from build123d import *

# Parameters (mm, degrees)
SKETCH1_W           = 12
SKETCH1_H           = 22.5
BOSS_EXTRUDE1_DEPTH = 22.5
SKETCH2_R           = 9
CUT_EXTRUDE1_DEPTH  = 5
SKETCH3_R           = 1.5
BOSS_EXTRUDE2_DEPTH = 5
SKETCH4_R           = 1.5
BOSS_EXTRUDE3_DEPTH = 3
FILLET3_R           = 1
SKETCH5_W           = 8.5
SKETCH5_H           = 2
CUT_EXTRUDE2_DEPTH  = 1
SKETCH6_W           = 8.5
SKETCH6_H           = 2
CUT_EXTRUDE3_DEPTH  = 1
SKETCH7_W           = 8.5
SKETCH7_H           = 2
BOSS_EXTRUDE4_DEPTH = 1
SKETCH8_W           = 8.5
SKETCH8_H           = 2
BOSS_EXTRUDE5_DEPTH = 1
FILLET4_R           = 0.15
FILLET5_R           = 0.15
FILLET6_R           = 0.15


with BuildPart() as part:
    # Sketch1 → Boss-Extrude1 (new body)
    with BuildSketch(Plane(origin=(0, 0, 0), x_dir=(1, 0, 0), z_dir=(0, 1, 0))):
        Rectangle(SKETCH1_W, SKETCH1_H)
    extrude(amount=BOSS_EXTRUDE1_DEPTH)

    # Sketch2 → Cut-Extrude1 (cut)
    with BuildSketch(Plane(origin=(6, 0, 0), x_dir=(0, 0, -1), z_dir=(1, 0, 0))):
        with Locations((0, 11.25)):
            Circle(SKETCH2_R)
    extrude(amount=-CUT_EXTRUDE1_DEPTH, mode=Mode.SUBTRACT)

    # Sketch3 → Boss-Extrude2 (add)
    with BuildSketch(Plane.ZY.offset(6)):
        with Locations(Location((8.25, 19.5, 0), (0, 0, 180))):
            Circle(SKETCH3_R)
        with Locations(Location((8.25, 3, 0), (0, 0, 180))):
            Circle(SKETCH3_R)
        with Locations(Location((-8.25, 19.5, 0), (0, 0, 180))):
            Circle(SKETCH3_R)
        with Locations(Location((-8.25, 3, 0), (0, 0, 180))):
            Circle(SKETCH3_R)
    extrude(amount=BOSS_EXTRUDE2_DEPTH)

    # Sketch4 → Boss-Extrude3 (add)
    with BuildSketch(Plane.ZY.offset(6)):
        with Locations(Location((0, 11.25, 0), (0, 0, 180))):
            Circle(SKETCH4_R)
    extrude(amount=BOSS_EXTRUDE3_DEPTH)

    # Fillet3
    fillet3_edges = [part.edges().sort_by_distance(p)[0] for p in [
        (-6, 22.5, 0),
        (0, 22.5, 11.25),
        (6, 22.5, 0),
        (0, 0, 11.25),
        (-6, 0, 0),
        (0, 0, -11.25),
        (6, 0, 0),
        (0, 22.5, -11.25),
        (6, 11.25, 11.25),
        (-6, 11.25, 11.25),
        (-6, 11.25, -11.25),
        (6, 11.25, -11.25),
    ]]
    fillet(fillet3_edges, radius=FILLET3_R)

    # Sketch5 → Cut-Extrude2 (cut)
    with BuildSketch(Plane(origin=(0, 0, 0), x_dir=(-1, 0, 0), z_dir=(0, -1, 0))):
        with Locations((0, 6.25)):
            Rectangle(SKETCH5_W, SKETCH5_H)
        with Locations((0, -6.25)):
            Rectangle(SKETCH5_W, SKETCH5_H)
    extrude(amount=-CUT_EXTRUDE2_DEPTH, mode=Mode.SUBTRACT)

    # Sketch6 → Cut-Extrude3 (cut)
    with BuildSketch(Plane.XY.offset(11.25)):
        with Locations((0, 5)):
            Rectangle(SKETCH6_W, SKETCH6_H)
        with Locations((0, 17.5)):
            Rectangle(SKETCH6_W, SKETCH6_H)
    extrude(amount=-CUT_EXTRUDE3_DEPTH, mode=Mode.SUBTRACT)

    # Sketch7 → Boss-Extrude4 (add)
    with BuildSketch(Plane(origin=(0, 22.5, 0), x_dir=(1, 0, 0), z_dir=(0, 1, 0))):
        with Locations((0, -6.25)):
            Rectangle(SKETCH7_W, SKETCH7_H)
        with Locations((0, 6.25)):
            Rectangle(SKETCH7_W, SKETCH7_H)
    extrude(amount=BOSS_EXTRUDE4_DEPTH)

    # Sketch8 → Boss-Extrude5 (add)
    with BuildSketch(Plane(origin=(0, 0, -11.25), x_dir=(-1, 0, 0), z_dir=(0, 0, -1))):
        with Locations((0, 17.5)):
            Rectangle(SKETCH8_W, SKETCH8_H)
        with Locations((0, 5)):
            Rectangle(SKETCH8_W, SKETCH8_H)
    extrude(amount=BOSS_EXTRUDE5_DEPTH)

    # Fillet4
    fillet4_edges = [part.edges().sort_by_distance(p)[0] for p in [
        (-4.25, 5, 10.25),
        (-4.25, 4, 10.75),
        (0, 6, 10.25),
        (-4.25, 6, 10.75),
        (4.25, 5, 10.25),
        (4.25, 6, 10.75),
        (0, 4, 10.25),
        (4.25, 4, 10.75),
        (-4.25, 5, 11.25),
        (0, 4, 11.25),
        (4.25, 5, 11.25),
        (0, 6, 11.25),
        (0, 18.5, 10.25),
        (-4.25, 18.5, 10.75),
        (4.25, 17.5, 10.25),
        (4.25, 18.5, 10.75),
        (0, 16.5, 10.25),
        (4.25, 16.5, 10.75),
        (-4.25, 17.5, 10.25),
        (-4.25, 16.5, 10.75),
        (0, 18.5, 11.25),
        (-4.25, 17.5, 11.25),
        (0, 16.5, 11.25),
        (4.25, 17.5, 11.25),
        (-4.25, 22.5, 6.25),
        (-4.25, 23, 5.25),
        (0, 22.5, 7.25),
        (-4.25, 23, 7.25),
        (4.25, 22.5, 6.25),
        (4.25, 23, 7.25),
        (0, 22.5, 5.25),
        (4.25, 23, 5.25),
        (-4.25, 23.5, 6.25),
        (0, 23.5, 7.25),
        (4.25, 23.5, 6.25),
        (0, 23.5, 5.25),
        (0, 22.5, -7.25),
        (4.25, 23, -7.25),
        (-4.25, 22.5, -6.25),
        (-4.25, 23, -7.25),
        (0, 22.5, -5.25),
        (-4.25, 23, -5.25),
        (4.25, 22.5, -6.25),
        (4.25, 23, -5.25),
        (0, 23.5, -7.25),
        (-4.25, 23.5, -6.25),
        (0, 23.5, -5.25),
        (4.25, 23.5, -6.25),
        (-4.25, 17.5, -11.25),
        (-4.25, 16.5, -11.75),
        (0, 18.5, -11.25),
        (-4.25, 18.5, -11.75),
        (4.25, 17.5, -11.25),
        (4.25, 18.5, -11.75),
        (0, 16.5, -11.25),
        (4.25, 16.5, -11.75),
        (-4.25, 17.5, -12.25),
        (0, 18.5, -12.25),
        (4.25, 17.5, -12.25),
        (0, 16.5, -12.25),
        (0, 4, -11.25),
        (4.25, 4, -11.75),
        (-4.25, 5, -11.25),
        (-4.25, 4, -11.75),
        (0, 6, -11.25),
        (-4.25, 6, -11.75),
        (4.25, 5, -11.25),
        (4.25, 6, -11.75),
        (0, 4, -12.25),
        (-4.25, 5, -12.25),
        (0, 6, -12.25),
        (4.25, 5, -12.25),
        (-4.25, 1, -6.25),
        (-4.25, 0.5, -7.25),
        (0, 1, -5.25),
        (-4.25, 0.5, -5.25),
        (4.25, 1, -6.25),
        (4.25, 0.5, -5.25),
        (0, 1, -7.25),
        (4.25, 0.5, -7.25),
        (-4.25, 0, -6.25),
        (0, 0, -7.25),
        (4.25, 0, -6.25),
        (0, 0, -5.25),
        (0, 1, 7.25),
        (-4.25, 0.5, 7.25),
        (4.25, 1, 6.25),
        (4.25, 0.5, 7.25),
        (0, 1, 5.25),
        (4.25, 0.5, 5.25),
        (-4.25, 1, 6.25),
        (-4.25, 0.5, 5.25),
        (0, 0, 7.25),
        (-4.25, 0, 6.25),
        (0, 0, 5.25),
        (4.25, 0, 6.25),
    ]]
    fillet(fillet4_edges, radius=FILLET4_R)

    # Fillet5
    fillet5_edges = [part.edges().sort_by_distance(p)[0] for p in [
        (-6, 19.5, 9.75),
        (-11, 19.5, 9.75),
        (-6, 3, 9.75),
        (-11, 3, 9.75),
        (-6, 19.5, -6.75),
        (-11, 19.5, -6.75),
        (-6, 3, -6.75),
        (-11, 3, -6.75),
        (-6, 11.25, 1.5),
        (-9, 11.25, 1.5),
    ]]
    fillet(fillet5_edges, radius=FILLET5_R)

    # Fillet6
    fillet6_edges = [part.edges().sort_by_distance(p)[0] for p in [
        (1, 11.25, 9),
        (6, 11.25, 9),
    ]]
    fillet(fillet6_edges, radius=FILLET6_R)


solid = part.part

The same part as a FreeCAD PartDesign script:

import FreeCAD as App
import Part
import Sketcher


def edges_at(feature, points):
    """Names of the edges that pass closest to the given points."""
    edges = feature.Shape.Edges
    near = lambda p: min(range(len(edges)), key=lambda i: edges[i].distToShape(Part.Vertex(*p))[0])
    return sorted({f"Edge{near(p) + 1}" for p in points})

doc = App.newDocument("Part")
body = doc.addObject("PartDesign::Body", "Body")

# Sketch on XZ plane
sketch1 = doc.addObject("Sketcher::SketchObject", "Sketch")
body.addObject(sketch1)
sketch1.AttachmentSupport = (doc.XZ_Plane, [""])
sketch1.MapMode = "FlatFace"
sketch1.addGeometry(Part.LineSegment(App.Vector(-6, -11, 0), App.Vector(-6, 11, 0)), False)
sketch1.addGeometry(Part.LineSegment(App.Vector(-6, 11, 0), App.Vector(6, 11, 0)), False)
sketch1.addGeometry(Part.LineSegment(App.Vector(6, 11, 0), App.Vector(6, -11, 0)), False)
sketch1.addGeometry(Part.LineSegment(App.Vector(6, -11, 0), App.Vector(-6, -11, 0)), False)
sketch1.addConstraint(Sketcher.Constraint("Coincident", 0, 2, 1, 1))
sketch1.addConstraint(Sketcher.Constraint("Coincident", 1, 2, 2, 1))
sketch1.addConstraint(Sketcher.Constraint("Coincident", 2, 2, 3, 1))
sketch1.addConstraint(Sketcher.Constraint("Coincident", 3, 2, 0, 1))
sketch1.addConstraint(Sketcher.Constraint("Vertical", 0))
sketch1.addConstraint(Sketcher.Constraint("Horizontal", 1))
sketch1.addConstraint(Sketcher.Constraint("Vertical", 2))
sketch1.addConstraint(Sketcher.Constraint("Horizontal", 3))
sketch1.addConstraint(Sketcher.Constraint("Symmetric", 0, 2, 2, 2, -1, 1))
sketch1.addConstraint(Sketcher.Constraint("DistanceX", 1, 1, 1, 2, 12.0))
sketch1.addConstraint(Sketcher.Constraint("DistanceY", 0, 1, 0, 2, 22.5))
pad1 = doc.addObject("PartDesign::Pad", "Pad")
body.addObject(pad1)
pad1.Profile = sketch1
pad1.Length = 22.5
pad1.Reversed = True

# Sketch on YZ plane
sketch2 = doc.addObject("Sketcher::SketchObject", "Sketch001")
body.addObject(sketch2)
sketch2.AttachmentSupport = (doc.YZ_Plane, [""])
sketch2.MapMode = "FlatFace"
sketch2.AttachmentOffset = App.Placement(App.Vector(0, 0, 6), App.Rotation())
sketch2.addGeometry(Part.Circle(App.Vector(11, 0, 0), App.Vector(0, 0, 1), 9), False)
sketch2.addConstraint(Sketcher.Constraint("PointOnObject", 0, 3, -1))
sketch2.addConstraint(Sketcher.Constraint("Diameter", 0, 18.0))
sketch2.addConstraint(Sketcher.Constraint("DistanceX", -1, 1, 0, 3, 11.25))
pocket1 = doc.addObject("PartDesign::Pocket", "Pocket")
body.addObject(pocket1)
pocket1.Profile = sketch2
pocket1.Length = 5

# Sketch on YZ plane
sketch3 = doc.addObject("Sketcher::SketchObject", "Sketch002")
body.addObject(sketch3)
sketch3.AttachmentSupport = (doc.YZ_Plane, [""])
sketch3.MapMode = "FlatFace"
sketch3.AttachmentOffset = App.Placement(App.Vector(0, 0, -6), App.Rotation())
sketch3.addGeometry(Part.Circle(App.Vector(19.5, 8.2, 0), App.Vector(0, 0, 1), 1.5), False)
sketch3.addGeometry(Part.Circle(App.Vector(3, 8.2, 0), App.Vector(0, 0, 1), 1.5), False)
sketch3.addGeometry(Part.Circle(App.Vector(19.5, -8.2, 0), App.Vector(0, 0, 1), 1.5), False)
sketch3.addGeometry(Part.Circle(App.Vector(3, -8.2, 0), App.Vector(0, 0, 1), 1.5), False)
sketch3.addConstraint(Sketcher.Constraint("Equal", 0, 1))
sketch3.addConstraint(Sketcher.Constraint("Equal", 1, 2))
sketch3.addConstraint(Sketcher.Constraint("Equal", 2, 3))
sketch3.addConstraint(Sketcher.Constraint("Symmetric", 0, 3, 2, 3, -1))
sketch3.addConstraint(Sketcher.Constraint("Symmetric", 1, 3, 3, 3, -1))
sketch3.addConstraint(Sketcher.Constraint("Horizontal", 0, 3, 1, 3))
sketch3.addConstraint(Sketcher.Constraint("Diameter", 0, 3.0))
sketch3.addConstraint(Sketcher.Constraint("DistanceX", -1, 1, 1, 3, 3.0))
sketch3.addConstraint(Sketcher.Constraint("DistanceX", -1, 1, 0, 3, 19.5))
sketch3.addConstraint(Sketcher.Constraint("DistanceY", 2, 3, 0, 3, 16.5))
pad2 = doc.addObject("PartDesign::Pad", "Pad001")
body.addObject(pad2)
pad2.Profile = sketch3
pad2.Length = 5
pad2.Reversed = True

# Sketch on YZ plane
sketch4 = doc.addObject("Sketcher::SketchObject", "Sketch003")
body.addObject(sketch4)
sketch4.AttachmentSupport = (doc.YZ_Plane, [""])
sketch4.MapMode = "FlatFace"
sketch4.AttachmentOffset = App.Placement(App.Vector(0, 0, -6), App.Rotation())
sketch4.addGeometry(Part.Circle(App.Vector(11.2, 0, 0), App.Vector(0, 0, 1), 1.5), False)
sketch4.addConstraint(Sketcher.Constraint("PointOnObject", 0, 3, -1))
sketch4.addConstraint(Sketcher.Constraint("Diameter", 0, 3.0))
sketch4.addConstraint(Sketcher.Constraint("DistanceX", -1, 1, 0, 3, 11.25))
pad3 = doc.addObject("PartDesign::Pad", "Pad002")
body.addObject(pad3)
pad3.Profile = sketch4
pad3.Length = 3
pad3.Reversed = True
doc.recompute()

fillet = doc.addObject("PartDesign::Fillet", "Fillet")
body.addObject(fillet)
fillet.Base = (pad3, edges_at(pad3, [
    (-6, 22.5, 0),
    (0, 22.5, 11.25),
    (6, 22.5, 0),
    (0, 0, 11.25),
    (-6, 0, 0),
    (0, 0, -11.25),
    (6, 0, 0),
    (0, 22.5, -11.25),
    (6, 11.25, 11.25),
    (-6, 11.25, 11.25),
    (-6, 11.25, -11.25),
    (6, 11.25, -11.25),
]))
fillet.Radius = 1

# Sketch on XZ plane
sketch5 = doc.addObject("Sketcher::SketchObject", "Sketch004")
body.addObject(sketch5)
sketch5.AttachmentSupport = (doc.XZ_Plane, [""])
sketch5.MapMode = "FlatFace"
sketch5.addGeometry(Part.LineSegment(App.Vector(4.2, -7.2, 0), App.Vector(4.2, -5.2, 0)), False)
sketch5.addGeometry(Part.LineSegment(App.Vector(4.2, -5.2, 0), App.Vector(-4.2, -5.2, 0)), False)
sketch5.addGeometry(Part.LineSegment(App.Vector(-4.2, -5.2, 0), App.Vector(-4.2, -7.2, 0)), False)
sketch5.addGeometry(Part.LineSegment(App.Vector(-4.2, -7.2, 0), App.Vector(4.2, -7.2, 0)), False)
sketch5.addGeometry(Part.LineSegment(App.Vector(4.2, 5.2, 0), App.Vector(4.2, 7.2, 0)), False)
sketch5.addGeometry(Part.LineSegment(App.Vector(4.2, 7.2, 0), App.Vector(-4.2, 7.2, 0)), False)
sketch5.addGeometry(Part.LineSegment(App.Vector(-4.2, 7.2, 0), App.Vector(-4.2, 5.2, 0)), False)
sketch5.addGeometry(Part.LineSegment(App.Vector(-4.2, 5.2, 0), App.Vector(4.2, 5.2, 0)), False)
sketch5.addConstraint(Sketcher.Constraint("Coincident", 0, 2, 1, 1))
sketch5.addConstraint(Sketcher.Constraint("Coincident", 1, 2, 2, 1))
sketch5.addConstraint(Sketcher.Constraint("Coincident", 2, 2, 3, 1))
sketch5.addConstraint(Sketcher.Constraint("Coincident", 3, 2, 0, 1))
sketch5.addConstraint(Sketcher.Constraint("Coincident", 4, 2, 5, 1))
sketch5.addConstraint(Sketcher.Constraint("Coincident", 5, 2, 6, 1))
sketch5.addConstraint(Sketcher.Constraint("Coincident", 6, 2, 7, 1))
sketch5.addConstraint(Sketcher.Constraint("Coincident", 7, 2, 4, 1))
sketch5.addConstraint(Sketcher.Constraint("Vertical", 0))
sketch5.addConstraint(Sketcher.Constraint("Horizontal", 1))
sketch5.addConstraint(Sketcher.Constraint("Vertical", 2))
sketch5.addConstraint(Sketcher.Constraint("Horizontal", 3))
sketch5.addConstraint(Sketcher.Constraint("Vertical", 4))
sketch5.addConstraint(Sketcher.Constraint("Horizontal", 5))
sketch5.addConstraint(Sketcher.Constraint("Vertical", 6))
sketch5.addConstraint(Sketcher.Constraint("Horizontal", 7))
sketch5.addConstraint(Sketcher.Constraint("Symmetric", 2, 2, 4, 2, -1, 1))
sketch5.addConstraint(Sketcher.Constraint("Symmetric", 0, 2, 6, 2, -1, 1))
sketch5.addConstraint(Sketcher.Constraint("Vertical", 3, 2, 4, 2))
sketch5.addConstraint(Sketcher.Constraint("DistanceY", 0, 1, 0, 2, 2.0))
sketch5.addConstraint(Sketcher.Constraint("DistanceX", 1, 2, 1, 1, 8.5))
sketch5.addConstraint(Sketcher.Constraint("DistanceY", 0, 2, 4, 2, 12.5))
pocket2 = doc.addObject("PartDesign::Pocket", "Pocket001")
body.addObject(pocket2)
pocket2.Profile = sketch5
pocket2.Length = 1

# Sketch on XY plane
sketch6 = doc.addObject("Sketcher::SketchObject", "Sketch005")
body.addObject(sketch6)
sketch6.AttachmentSupport = (doc.XY_Plane, [""])
sketch6.MapMode = "FlatFace"
sketch6.AttachmentOffset = App.Placement(App.Vector(0, 0, 11.25), App.Rotation())
sketch6.addGeometry(Part.LineSegment(App.Vector(-4.2, 6, 0), App.Vector(-4.2, 4, 0)), False)
sketch6.addGeometry(Part.LineSegment(App.Vector(-4.2, 4, 0), App.Vector(4.2, 4, 0)), False)
sketch6.addGeometry(Part.LineSegment(App.Vector(4.2, 4, 0), App.Vector(4.2, 6, 0)), False)
sketch6.addGeometry(Part.LineSegment(App.Vector(4.2, 6, 0), App.Vector(-4.2, 6, 0)), False)
sketch6.addGeometry(Part.LineSegment(App.Vector(-4.2, 18.5, 0), App.Vector(-4.2, 16.5, 0)), False)
sketch6.addGeometry(Part.LineSegment(App.Vector(-4.2, 16.5, 0), App.Vector(4.2, 16.5, 0)), False)
sketch6.addGeometry(Part.LineSegment(App.Vector(4.2, 16.5, 0), App.Vector(4.2, 18.5, 0)), False)
sketch6.addGeometry(Part.LineSegment(App.Vector(4.2, 18.5, 0), App.Vector(-4.2, 18.5, 0)), False)
sketch6.addConstraint(Sketcher.Constraint("Coincident", 0, 2, 1, 1))
sketch6.addConstraint(Sketcher.Constraint("Coincident", 1, 2, 2, 1))
sketch6.addConstraint(Sketcher.Constraint("Coincident", 2, 2, 3, 1))
sketch6.addConstraint(Sketcher.Constraint("Coincident", 3, 2, 0, 1))
sketch6.addConstraint(Sketcher.Constraint("Coincident", 4, 2, 5, 1))
sketch6.addConstraint(Sketcher.Constraint("Coincident", 5, 2, 6, 1))
sketch6.addConstraint(Sketcher.Constraint("Coincident", 6, 2, 7, 1))
sketch6.addConstraint(Sketcher.Constraint("Coincident", 7, 2, 4, 1))
sketch6.addConstraint(Sketcher.Constraint("Vertical", 0))
sketch6.addConstraint(Sketcher.Constraint("Horizontal", 1))
sketch6.addConstraint(Sketcher.Constraint("Vertical", 2))
sketch6.addConstraint(Sketcher.Constraint("Horizontal", 3))
sketch6.addConstraint(Sketcher.Constraint("Vertical", 4))
sketch6.addConstraint(Sketcher.Constraint("Horizontal", 5))
sketch6.addConstraint(Sketcher.Constraint("Vertical", 6))
sketch6.addConstraint(Sketcher.Constraint("Horizontal", 7))
sketch6.addConstraint(Sketcher.Constraint("Vertical", 3, 2, 4, 2))
sketch6.addConstraint(Sketcher.Constraint("Vertical", 2, 2, 5, 2))
sketch6.addConstraint(Sketcher.Constraint("Equal", 2, 4))
sketch6.addConstraint(Sketcher.Constraint("DistanceY", 0, 2, 0, 1, 2.0))
sketch6.addConstraint(Sketcher.Constraint("DistanceX", 1, 1, 1, 2, 8.5))
sketch6.addConstraint(Sketcher.Constraint("DistanceY", -1, 1, 0, 2, 4.0))
sketch6.addConstraint(Sketcher.Constraint("DistanceY", -1, 1, 4, 2, 16.5))
sketch6.addConstraint(Sketcher.Constraint("DistanceX", 0, 2, -1, 1, 4.25))
pocket3 = doc.addObject("PartDesign::Pocket", "Pocket002")
body.addObject(pocket3)
pocket3.Profile = sketch6
pocket3.Length = 1

# Sketch on XZ plane
sketch7 = doc.addObject("Sketcher::SketchObject", "Sketch006")
body.addObject(sketch7)
sketch7.AttachmentSupport = (doc.XZ_Plane, [""])
sketch7.MapMode = "FlatFace"
sketch7.AttachmentOffset = App.Placement(App.Vector(0, 0, -22.5), App.Rotation())
sketch7.addGeometry(Part.LineSegment(App.Vector(-4.2, 5.2, 0), App.Vector(-4.2, 7.2, 0)), False)
sketch7.addGeometry(Part.LineSegment(App.Vector(-4.2, 7.2, 0), App.Vector(4.2, 7.2, 0)), False)
sketch7.addGeometry(Part.LineSegment(App.Vector(4.2, 7.2, 0), App.Vector(4.2, 5.2, 0)), False)
sketch7.addGeometry(Part.LineSegment(App.Vector(4.2, 5.2, 0), App.Vector(-4.2, 5.2, 0)), False)
sketch7.addGeometry(Part.LineSegment(App.Vector(-4.2, -7.2, 0), App.Vector(-4.2, -5.2, 0)), False)
sketch7.addGeometry(Part.LineSegment(App.Vector(-4.2, -5.2, 0), App.Vector(4.2, -5.2, 0)), False)
sketch7.addGeometry(Part.LineSegment(App.Vector(4.2, -5.2, 0), App.Vector(4.2, -7.2, 0)), False)
sketch7.addGeometry(Part.LineSegment(App.Vector(4.2, -7.2, 0), App.Vector(-4.2, -7.2, 0)), False)
sketch7.addConstraint(Sketcher.Constraint("Coincident", 0, 2, 1, 1))
sketch7.addConstraint(Sketcher.Constraint("Coincident", 1, 2, 2, 1))
sketch7.addConstraint(Sketcher.Constraint("Coincident", 2, 2, 3, 1))
sketch7.addConstraint(Sketcher.Constraint("Coincident", 3, 2, 0, 1))
sketch7.addConstraint(Sketcher.Constraint("Coincident", 4, 2, 5, 1))
sketch7.addConstraint(Sketcher.Constraint("Coincident", 5, 2, 6, 1))
sketch7.addConstraint(Sketcher.Constraint("Coincident", 6, 2, 7, 1))
sketch7.addConstraint(Sketcher.Constraint("Coincident", 7, 2, 4, 1))
sketch7.addConstraint(Sketcher.Constraint("Vertical", 0))
sketch7.addConstraint(Sketcher.Constraint("Horizontal", 1))
sketch7.addConstraint(Sketcher.Constraint("Vertical", 2))
sketch7.addConstraint(Sketcher.Constraint("Horizontal", 3))
sketch7.addConstraint(Sketcher.Constraint("Vertical", 4))
sketch7.addConstraint(Sketcher.Constraint("Horizontal", 5))
sketch7.addConstraint(Sketcher.Constraint("Vertical", 6))
sketch7.addConstraint(Sketcher.Constraint("Horizontal", 7))
sketch7.addConstraint(Sketcher.Constraint("Symmetric", 2, 2, 4, 2, -1, 1))
sketch7.addConstraint(Sketcher.Constraint("Symmetric", 0, 2, 6, 2, -1, 1))
sketch7.addConstraint(Sketcher.Constraint("Vertical", 3, 2, 4, 2))
sketch7.addConstraint(Sketcher.Constraint("DistanceY", 0, 1, 0, 2, 2.0))
sketch7.addConstraint(Sketcher.Constraint("DistanceX", 1, 1, 1, 2, 8.5))
sketch7.addConstraint(Sketcher.Constraint("DistanceY", 4, 2, 3, 2, 10.5))
pad4 = doc.addObject("PartDesign::Pad", "Pad003")
body.addObject(pad4)
pad4.Profile = sketch7
pad4.Length = 1
pad4.Reversed = True

# Sketch on XY plane
sketch8 = doc.addObject("Sketcher::SketchObject", "Sketch007")
body.addObject(sketch8)
sketch8.AttachmentSupport = (doc.XY_Plane, [""])
sketch8.MapMode = "FlatFace"
sketch8.AttachmentOffset = App.Placement(App.Vector(0, 0, -11.25), App.Rotation())
sketch8.addGeometry(Part.LineSegment(App.Vector(4.2, 18.5, 0), App.Vector(4.2, 16.5, 0)), False)
sketch8.addGeometry(Part.LineSegment(App.Vector(4.2, 16.5, 0), App.Vector(-4.2, 16.5, 0)), False)
sketch8.addGeometry(Part.LineSegment(App.Vector(-4.2, 16.5, 0), App.Vector(-4.2, 18.5, 0)), False)
sketch8.addGeometry(Part.LineSegment(App.Vector(-4.2, 18.5, 0), App.Vector(4.2, 18.5, 0)), False)
sketch8.addGeometry(Part.LineSegment(App.Vector(4.2, 6, 0), App.Vector(4.2, 4, 0)), False)
sketch8.addGeometry(Part.LineSegment(App.Vector(4.2, 4, 0), App.Vector(-4.2, 4, 0)), False)
sketch8.addGeometry(Part.LineSegment(App.Vector(-4.2, 4, 0), App.Vector(-4.2, 6, 0)), False)
sketch8.addGeometry(Part.LineSegment(App.Vector(-4.2, 6, 0), App.Vector(4.2, 6, 0)), False)
sketch8.addConstraint(Sketcher.Constraint("Coincident", 0, 2, 1, 1))
sketch8.addConstraint(Sketcher.Constraint("Coincident", 1, 2, 2, 1))
sketch8.addConstraint(Sketcher.Constraint("Coincident", 2, 2, 3, 1))
sketch8.addConstraint(Sketcher.Constraint("Coincident", 3, 2, 0, 1))
sketch8.addConstraint(Sketcher.Constraint("Coincident", 4, 2, 5, 1))
sketch8.addConstraint(Sketcher.Constraint("Coincident", 5, 2, 6, 1))
sketch8.addConstraint(Sketcher.Constraint("Coincident", 6, 2, 7, 1))
sketch8.addConstraint(Sketcher.Constraint("Coincident", 7, 2, 4, 1))
sketch8.addConstraint(Sketcher.Constraint("Vertical", 0))
sketch8.addConstraint(Sketcher.Constraint("Horizontal", 1))
sketch8.addConstraint(Sketcher.Constraint("Vertical", 2))
sketch8.addConstraint(Sketcher.Constraint("Horizontal", 3))
sketch8.addConstraint(Sketcher.Constraint("Vertical", 4))
sketch8.addConstraint(Sketcher.Constraint("Horizontal", 5))
sketch8.addConstraint(Sketcher.Constraint("Vertical", 6))
sketch8.addConstraint(Sketcher.Constraint("Horizontal", 7))
sketch8.addConstraint(Sketcher.Constraint("Vertical", 3, 2, 4, 2))
sketch8.addConstraint(Sketcher.Constraint("Vertical", 2, 2, 5, 2))
sketch8.addConstraint(Sketcher.Constraint("Equal", 2, 4))
sketch8.addConstraint(Sketcher.Constraint("DistanceY", 0, 2, 0, 1, 2.0))
sketch8.addConstraint(Sketcher.Constraint("DistanceX", 1, 2, 1, 1, 8.5))
sketch8.addConstraint(Sketcher.Constraint("DistanceY", -1, 1, 4, 2, 4.0))
sketch8.addConstraint(Sketcher.Constraint("DistanceY", -1, 1, 0, 2, 16.5))
sketch8.addConstraint(Sketcher.Constraint("DistanceX", -1, 1, 0, 2, 4.25))
pad5 = doc.addObject("PartDesign::Pad", "Pad004")
body.addObject(pad5)
pad5.Profile = sketch8
pad5.Length = 1
pad5.Reversed = True
doc.recompute()

fillet2 = doc.addObject("PartDesign::Fillet", "Fillet001")
body.addObject(fillet2)
fillet2.Base = (pad5, edges_at(pad5, [
    (-4.25, 5, 10.25),
    (-4.25, 4, 10.75),
    (0, 6, 10.25),
    (-4.25, 6, 10.75),
    (4.25, 5, 10.25),
    (4.25, 6, 10.75),
    (0, 4, 10.25),
    (4.25, 4, 10.75),
    (-4.25, 5, 11.25),
    (0, 4, 11.25),
    (4.25, 5, 11.25),
    (0, 6, 11.25),
    (0, 18.5, 10.25),
    (-4.25, 18.5, 10.75),
    (4.25, 17.5, 10.25),
    (4.25, 18.5, 10.75),
    (0, 16.5, 10.25),
    (4.25, 16.5, 10.75),
    (-4.25, 17.5, 10.25),
    (-4.25, 16.5, 10.75),
    (0, 18.5, 11.25),
    (-4.25, 17.5, 11.25),
    (0, 16.5, 11.25),
    (4.25, 17.5, 11.25),
    (-4.25, 22.5, 6.25),
    (-4.25, 23, 5.25),
    (0, 22.5, 7.25),
    (-4.25, 23, 7.25),
    (4.25, 22.5, 6.25),
    (4.25, 23, 7.25),
    (0, 22.5, 5.25),
    (4.25, 23, 5.25),
    (-4.25, 23.5, 6.25),
    (0, 23.5, 7.25),
    (4.25, 23.5, 6.25),
    (0, 23.5, 5.25),
    (0, 22.5, -7.25),
    (4.25, 23, -7.25),
    (-4.25, 22.5, -6.25),
    (-4.25, 23, -7.25),
    (0, 22.5, -5.25),
    (-4.25, 23, -5.25),
    (4.25, 22.5, -6.25),
    (4.25, 23, -5.25),
    (0, 23.5, -7.25),
    (-4.25, 23.5, -6.25),
    (0, 23.5, -5.25),
    (4.25, 23.5, -6.25),
    (-4.25, 17.5, -11.25),
    (-4.25, 16.5, -11.75),
    (0, 18.5, -11.25),
    (-4.25, 18.5, -11.75),
    (4.25, 17.5, -11.25),
    (4.25, 18.5, -11.75),
    (0, 16.5, -11.25),
    (4.25, 16.5, -11.75),
    (-4.25, 17.5, -12.25),
    (0, 18.5, -12.25),
    (4.25, 17.5, -12.25),
    (0, 16.5, -12.25),
    (0, 4, -11.25),
    (4.25, 4, -11.75),
    (-4.25, 5, -11.25),
    (-4.25, 4, -11.75),
    (0, 6, -11.25),
    (-4.25, 6, -11.75),
    (4.25, 5, -11.25),
    (4.25, 6, -11.75),
    (0, 4, -12.25),
    (-4.25, 5, -12.25),
    (0, 6, -12.25),
    (4.25, 5, -12.25),
    (-4.25, 1, -6.25),
    (-4.25, 0.5, -7.25),
    (0, 1, -5.25),
    (-4.25, 0.5, -5.25),
    (4.25, 1, -6.25),
    (4.25, 0.5, -5.25),
    (0, 1, -7.25),
    (4.25, 0.5, -7.25),
    (-4.25, 0, -6.25),
    (0, 0, -7.25),
    (4.25, 0, -6.25),
    (0, 0, -5.25),
    (0, 1, 7.25),
    (-4.25, 0.5, 7.25),
    (4.25, 1, 6.25),
    (4.25, 0.5, 7.25),
    (0, 1, 5.25),
    (4.25, 0.5, 5.25),
    (-4.25, 1, 6.25),
    (-4.25, 0.5, 5.25),
    (0, 0, 7.25),
    (-4.25, 0, 6.25),
    (0, 0, 5.25),
    (4.25, 0, 6.25),
]))
fillet2.Radius = 0.15
doc.recompute()

fillet3 = doc.addObject("PartDesign::Fillet", "Fillet002")
body.addObject(fillet3)
fillet3.Base = (fillet2, edges_at(fillet2, [
    (-6, 19.5, 9.75),
    (-11, 19.5, 9.75),
    (-6, 3, 9.75),
    (-11, 3, 9.75),
    (-6, 19.5, -6.75),
    (-11, 19.5, -6.75),
    (-6, 3, -6.75),
    (-11, 3, -6.75),
    (-6, 11.25, 1.5),
    (-9, 11.25, 1.5),
]))
fillet3.Radius = 0.15
doc.recompute()

fillet4 = doc.addObject("PartDesign::Fillet", "Fillet003")
body.addObject(fillet4)
fillet4.Base = (fillet3, edges_at(fillet3, [(1, 11.25, 9), (6, 11.25, 9)]))
fillet4.Radius = 0.15

doc.recompute()
